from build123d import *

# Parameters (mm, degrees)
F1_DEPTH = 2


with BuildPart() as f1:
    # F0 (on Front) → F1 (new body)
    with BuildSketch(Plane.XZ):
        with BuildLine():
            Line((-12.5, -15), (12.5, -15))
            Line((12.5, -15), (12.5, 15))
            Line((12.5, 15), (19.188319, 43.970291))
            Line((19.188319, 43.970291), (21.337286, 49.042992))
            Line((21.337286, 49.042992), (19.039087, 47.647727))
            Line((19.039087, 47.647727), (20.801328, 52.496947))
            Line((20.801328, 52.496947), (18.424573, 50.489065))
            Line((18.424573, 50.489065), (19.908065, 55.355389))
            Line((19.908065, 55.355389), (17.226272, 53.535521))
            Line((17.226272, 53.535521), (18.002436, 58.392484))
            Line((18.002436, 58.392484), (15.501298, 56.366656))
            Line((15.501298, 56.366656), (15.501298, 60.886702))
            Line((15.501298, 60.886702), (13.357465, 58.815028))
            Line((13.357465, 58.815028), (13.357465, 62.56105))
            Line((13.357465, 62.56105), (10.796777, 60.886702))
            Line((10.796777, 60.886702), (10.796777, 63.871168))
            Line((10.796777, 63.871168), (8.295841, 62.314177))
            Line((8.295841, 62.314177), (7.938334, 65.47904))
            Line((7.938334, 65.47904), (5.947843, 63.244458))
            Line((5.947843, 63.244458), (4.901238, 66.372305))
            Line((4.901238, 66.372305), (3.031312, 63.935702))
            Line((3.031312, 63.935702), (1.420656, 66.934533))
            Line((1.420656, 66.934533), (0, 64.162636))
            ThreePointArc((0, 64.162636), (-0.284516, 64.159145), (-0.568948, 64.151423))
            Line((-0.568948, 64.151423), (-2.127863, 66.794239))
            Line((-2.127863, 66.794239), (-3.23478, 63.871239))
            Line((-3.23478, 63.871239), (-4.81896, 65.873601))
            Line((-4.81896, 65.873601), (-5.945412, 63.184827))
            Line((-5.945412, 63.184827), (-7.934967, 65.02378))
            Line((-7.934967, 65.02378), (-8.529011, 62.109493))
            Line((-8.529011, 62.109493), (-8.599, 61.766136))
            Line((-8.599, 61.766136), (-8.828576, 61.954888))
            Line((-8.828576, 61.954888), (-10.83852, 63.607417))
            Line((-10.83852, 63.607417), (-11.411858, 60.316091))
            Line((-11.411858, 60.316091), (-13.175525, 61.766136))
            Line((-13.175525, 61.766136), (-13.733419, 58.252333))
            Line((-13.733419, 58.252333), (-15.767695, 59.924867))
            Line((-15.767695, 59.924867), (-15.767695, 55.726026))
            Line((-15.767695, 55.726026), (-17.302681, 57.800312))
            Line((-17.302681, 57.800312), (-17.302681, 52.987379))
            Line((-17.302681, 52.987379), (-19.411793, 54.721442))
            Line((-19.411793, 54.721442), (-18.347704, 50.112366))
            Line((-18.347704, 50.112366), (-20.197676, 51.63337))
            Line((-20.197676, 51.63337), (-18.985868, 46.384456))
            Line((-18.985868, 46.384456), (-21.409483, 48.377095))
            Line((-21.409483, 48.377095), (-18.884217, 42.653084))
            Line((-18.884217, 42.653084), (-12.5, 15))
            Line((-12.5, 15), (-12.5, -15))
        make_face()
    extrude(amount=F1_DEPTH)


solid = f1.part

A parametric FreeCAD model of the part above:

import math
import FreeCAD as App
import Part
import Sketcher

V = App.Vector

doc = App.newDocument("Part")
body = doc.addObject("PartDesign::Body", "Body")

# Sketch on XZ plane
sketch1 = body.newObject("Sketcher::SketchObject", "Sketch")
sketch1.AttachmentSupport = (doc.getObject("XZ_Plane"), [""])
sketch1.MapMode = "FlatFace"
sketch1.addGeometry(Part.LineSegment(V(-12.5, -15, 0), V(12.5, -15, 0)), False)
sketch1.addGeometry(Part.LineSegment(V(12.5, -15, 0), V(12.5, 15, 0)), False)
sketch1.addGeometry(Part.LineSegment(V(12.5, 15, 0), V(19.188319, 43.970291, 0)), False)
sketch1.addGeometry(Part.LineSegment(V(19.188319, 43.970291, 0), V(21.337286, 49.042992, 0)), False)
sketch1.addGeometry(Part.LineSegment(V(21.337286, 49.042992, 0), V(19.039087, 47.647727, 0)), False)
sketch1.addGeometry(Part.LineSegment(V(19.039087, 47.647727, 0), V(20.801328, 52.496947, 0)), False)
sketch1.addGeometry(Part.LineSegment(V(20.801328, 52.496947, 0), V(18.424573, 50.489065, 0)), False)
sketch1.addGeometry(Part.LineSegment(V(18.424573, 50.489065, 0), V(19.908065, 55.355389, 0)), False)
sketch1.addGeometry(Part.LineSegment(V(19.908065, 55.355389, 0), V(17.226272, 53.535521, 0)), False)
sketch1.addGeometry(Part.LineSegment(V(17.226272, 53.535521, 0), V(18.002436, 58.392484, 0)), False)
sketch1.addGeometry(Part.LineSegment(V(18.002436, 58.392484, 0), V(15.501298, 56.366656, 0)), False)
sketch1.addGeometry(Part.LineSegment(V(15.501298, 56.366656, 0), V(15.501298, 60.886702, 0)), False)
sketch1.addGeometry(Part.LineSegment(V(15.501298, 60.886702, 0), V(13.357465, 58.815028, 0)), False)
sketch1.addGeometry(Part.LineSegment(V(13.357465, 58.815028, 0), V(13.357465, 62.56105, 0)), False)
sketch1.addGeometry(Part.LineSegment(V(13.357465, 62.56105, 0), V(10.796777, 60.886702, 0)), False)
sketch1.addGeometry(Part.LineSegment(V(10.796777, 60.886702, 0), V(10.796777, 63.871168, 0)), False)
sketch1.addGeometry(Part.LineSegment(V(10.796777, 63.871168, 0), V(8.295841, 62.314177, 0)), False)
sketch1.addGeometry(Part.LineSegment(V(8.295841, 62.314177, 0), V(7.938334, 65.47904, 0)), False)
sketch1.addGeometry(Part.LineSegment(V(7.938334, 65.47904, 0), V(5.947843, 63.244458, 0)), False)
sketch1.addGeometry(Part.LineSegment(V(5.947843, 63.244458, 0), V(4.901238, 66.372305, 0)), False)
sketch1.addGeometry(Part.LineSegment(V(4.901238, 66.372305, 0), V(3.031312, 63.935702, 0)), False)
sketch1.addGeometry(Part.LineSegment(V(3.031312, 63.935702, 0), V(1.420656, 66.934533, 0)), False)
sketch1.addGeometry(Part.LineSegment(V(1.420656, 66.934533, 0), V(0, 64.162636, 0)), False)
sketch1.addGeometry(Part.ArcOfCircle(Part.Circle(V(0.092461, 45.03135, 0), V(0, 0, 1), 19.131509), math.radians(90.276906), math.radians(91.981207)), False)
sketch1.addGeometry(Part.LineSegment(V(-0.568948, 64.151423, 0), V(-2.127863, 66.794239, 0)), False)
sketch1.addGeometry(Part.LineSegment(V(-2.127863, 66.794239, 0), V(-3.23478, 63.871239, 0)), False)
sketch1.addGeometry(Part.LineSegment(V(-3.23478, 63.871239, 0), V(-4.81896, 65.873601, 0)), False)
sketch1.addGeometry(Part.LineSegment(V(-4.81896, 65.873601, 0), V(-5.945412, 63.184827, 0)), False)
sketch1.addGeometry(Part.LineSegment(V(-5.945412, 63.184827, 0), V(-7.934967, 65.02378, 0)), False)
sketch1.addGeometry(Part.LineSegment(V(-7.934967, 65.02378, 0), V(-8.529011, 62.109493, 0)), False)
sketch1.addGeometry(Part.LineSegment(V(-8.529011, 62.109493, 0), V(-8.599, 61.766136, 0)), False)
sketch1.addGeometry(Part.LineSegment(V(-8.599, 61.766136, 0), V(-8.828576, 61.954888, 0)), False)
sketch1.addGeometry(Part.LineSegment(V(-8.828576, 61.954888, 0), V(-10.83852, 63.607417, 0)), False)
sketch1.addGeometry(Part.LineSegment(V(-10.83852, 63.607417, 0), V(-11.411858, 60.316091, 0)), False)
sketch1.addGeometry(Part.LineSegment(V(-11.411858, 60.316091, 0), V(-13.175525, 61.766136, 0)), False)
sketch1.addGeometry(Part.LineSegment(V(-13.175525, 61.766136, 0), V(-13.733419, 58.252333, 0)), False)
sketch1.addGeometry(Part.LineSegment(V(-13.733419, 58.252333, 0), V(-15.767695, 59.924867, 0)), False)
sketch1.addGeometry(Part.LineSegment(V(-15.767695, 59.924867, 0), V(-15.767695, 55.726026, 0)), False)
sketch1.addGeometry(Part.LineSegment(V(-15.767695, 55.726026, 0), V(-17.302681, 57.800312, 0)), False)
sketch1.addGeometry(Part.LineSegment(V(-17.302681, 57.800312, 0), V(-17.302681, 52.987379, 0)), False)
sketch1.addGeometry(Part.LineSegment(V(-17.302681, 52.987379, 0), V(-19.411793, 54.721442, 0)), False)
sketch1.addGeometry(Part.LineSegment(V(-19.411793, 54.721442, 0), V(-18.347704, 50.112366, 0)), False)
sketch1.addGeometry(Part.LineSegment(V(-18.347704, 50.112366, 0), V(-20.197676, 51.63337, 0)), False)
sketch1.addGeometry(Part.LineSegment(V(-20.197676, 51.63337, 0), V(-18.985868, 46.384456, 0)), False)
sketch1.addGeometry(Part.LineSegment(V(-18.985868, 46.384456, 0), V(-21.409483, 48.377095, 0)), False)
sketch1.addGeometry(Part.LineSegment(V(-21.409483, 48.377095, 0), V(-18.884217, 42.653084, 0)), False)
sketch1.addGeometry(Part.LineSegment(V(-18.884217, 42.653084, 0), V(-12.5, 15, 0)), False)
sketch1.addGeometry(Part.LineSegment(V(-12.5, 15, 0), V(-12.5, -15, 0)), False)
sketch1.addConstraint(Sketcher.Constraint("Coincident", 0, 2, 1, 1))
sketch1.addConstraint(Sketcher.Constraint("Coincident", 1, 2, 2, 1))
sketch1.addConstraint(Sketcher.Constraint("Coincident", 2, 2, 3, 1))
sketch1.addConstraint(Sketcher.Constraint("Coincident", 3, 2, 4, 1))
sketch1.addConstraint(Sketcher.Constraint("Coincident", 4, 2, 5, 1))
sketch1.addConstraint(Sketcher.Constraint("Coincident", 5, 2, 6, 1))
sketch1.addConstraint(Sketcher.Constraint("Coincident", 6, 2, 7, 1))
sketch1.addConstraint(Sketcher.Constraint("Coincident", 7, 2, 8, 1))
sketch1.addConstraint(Sketcher.Constraint("Coincident", 8, 2, 9, 1))
sketch1.addConstraint(Sketcher.Constraint("Coincident", 9, 2, 10, 1))
sketch1.addConstraint(Sketcher.Constraint("Coincident", 10, 2, 11, 1))
sketch1.addConstraint(Sketcher.Constraint("Coincident", 11, 2, 12, 1))
sketch1.addConstraint(Sketcher.Constraint("Coincident", 12, 2, 13, 1))
sketch1.addConstraint(Sketcher.Constraint("Coincident", 13, 2, 14, 1))
sketch1.addConstraint(Sketcher.Constraint("Coincident", 14, 2, 15, 1))
sketch1.addConstraint(Sketcher.Constraint("Coincident", 15, 2, 16, 1))
sketch1.addConstraint(Sketcher.Constraint("Coincident", 16, 2, 17, 1))
sketch1.addConstraint(Sketcher.Constraint("Coincident", 17, 2, 18, 1))
sketch1.addConstraint(Sketcher.Constraint("Coincident", 18, 2, 19, 1))
sketch1.addConstraint(Sketcher.Constraint("Coincident", 19, 2, 20, 1))
sketch1.addConstraint(Sketcher.Constraint("Coincident", 20, 2, 21, 1))
sketch1.addConstraint(Sketcher.Constraint("Coincident", 21, 2, 22, 1))
sketch1.addConstraint(Sketcher.Constraint("Coincident", 22, 2, 23, 1))
sketch1.addConstraint(Sketcher.Constraint("Coincident", 23, 2, 24, 1))
sketch1.addConstraint(Sketcher.Constraint("Coincident", 24, 2, 25, 1))
sketch1.addConstraint(Sketcher.Constraint("Coincident", 25, 2, 26, 1))
sketch1.addConstraint(Sketcher.Constraint("Coincident", 26, 2, 27, 1))
sketch1.addConstraint(Sketcher.Constraint("Coincident", 27, 2, 28, 1))
sketch1.addConstraint(Sketcher.Constraint("Coincident", 28, 2, 29, 1))
sketch1.addConstraint(Sketcher.Constraint("Coincident", 29, 2, 30, 1))
sketch1.addConstraint(Sketcher.Constraint("Coincident", 30, 2, 31, 1))
sketch1.addConstraint(Sketcher.Constraint("Coincident", 31, 2, 32, 1))
sketch1.addConstraint(Sketcher.Constraint("Coincident", 32, 2, 33, 1))
sketch1.addConstraint(Sketcher.Constraint("Coincident", 33, 2, 34, 1))
sketch1.addConstraint(Sketcher.Constraint("Coincident", 34, 2, 35, 1))
sketch1.addConstraint(Sketcher.Constraint("Coincident", 35, 2, 36, 1))
sketch1.addConstraint(Sketcher.Constraint("Coincident", 36, 2, 37, 1))
sketch1.addConstraint(Sketcher.Constraint("Coincident", 37, 2, 38, 1))
sketch1.addConstraint(Sketcher.Constraint("Coincident", 38, 2, 39, 1))
sketch1.addConstraint(Sketcher.Constraint("Coincident", 39, 2, 40, 1))
sketch1.addConstraint(Sketcher.Constraint("Coincident", 40, 2, 41, 1))
sketch1.addConstraint(Sketcher.Constraint("Coincident", 41, 2, 42, 1))
sketch1.addConstraint(Sketcher.Constraint("Coincident", 42, 2, 43, 1))
sketch1.addConstraint(Sketcher.Constraint("Coincident", 43, 2, 44, 1))
sketch1.addConstraint(Sketcher.Constraint("Coincident", 44, 2, 45, 1))
sketch1.addConstraint(Sketcher.Constraint("Coincident", 45, 2, 46, 1))
sketch1.addConstraint(Sketcher.Constraint("Coincident", 46, 2, 47, 1))
sketch1.addConstraint(Sketcher.Constraint("Coincident", 47, 2, 0, 1))
sketch1.addConstraint(Sketcher.Constraint("Horizontal", 0))
sketch1.addConstraint(Sketcher.Constraint("Vertical", 1))
sketch1.addConstraint(Sketcher.Constraint("Vertical", 11))
sketch1.addConstraint(Sketcher.Constraint("Vertical", 13))
sketch1.addConstraint(Sketcher.Constraint("Vertical", 15))
sketch1.addConstraint(Sketcher.Constraint("Vertical", 37))
sketch1.addConstraint(Sketcher.Constraint("Vertical", 39))
sketch1.addConstraint(Sketcher.Constraint("Vertical", 47))
sketch1.addConstraint(Sketcher.Constraint("PointOnObject", 22, 2, -2))
sketch1.addConstraint(Sketcher.Constraint("DistanceX", 0, 1, 0, 2, 25.0))
sketch1.addConstraint(Sketcher.Constraint("DistanceY", 1, 1, 1, 2, 30.0))
sketch1.addConstraint(Sketcher.Constraint("DistanceY", 47, 2, 47, 1, 30.0))
sketch1.addConstraint(Sketcher.Constraint("DistanceY", 0, 2, -1, 1, 15.0))
sketch1.addConstraint(Sketcher.Constraint("DistanceX", -1, 1, 0, 2, 12.5))
sketch1.addConstraint(Sketcher.Constraint("Radius", 23, 19.131509))
sketch1.addConstraint(Sketcher.Constraint("DistanceX", 30, 2, -1, 1, 8.599))
sketch1.addConstraint(Sketcher.Constraint("DistanceY", 25, 2, 24, 2, 2.923))
sketch1.addConstraint(Sketcher.Constraint("Distance", 5, 5.159499))
sketch1.addConstraint(Sketcher.Constraint("Distance", 27, 2.915201))
sketch1.addConstraint(Sketcher.Constraint("Distance", 45, 6.256298))
sketch1.addConstraint(Sketcher.Constraint("DistanceY", 37, 2, 37, 1, 4.198841))
sketch1.addConstraint(Sketcher.Constraint("DistanceY", -1, 1, 26, 2, 65.873601))
sketch1.addConstraint(Sketcher.Constraint("DistanceY", 2, 2, 3, 2, 5.072701))
sketch1.addConstraint(Sketcher.Constraint("DistanceX", 4, 2, 3, 2, 2.298199))
sketch1.addConstraint(Sketcher.Constraint("DistanceX", 8, 2, 6, 2, 1.198301))
sketch1.addConstraint(Sketcher.Constraint("DistanceX", 12, 2, 7, 2, 6.5506))
sketch1.addConstraint(Sketcher.Constraint("DistanceX", 24, 2, 19, 2, 7.029101))
sketch1.addConstraint(Sketcher.Constraint("DistanceX", 29, 2, 27, 2, 2.583599))
sketch1.addConstraint(Sketcher.Constraint("DistanceX", 35, 2, 32, 2, 2.894899))
sketch1.addConstraint(Sketcher.Constraint("Distance", 2, 29.732329))
sketch1.addConstraint(Sketcher.Constraint("Distance", 6, 3.111359))
sketch1.addConstraint(Sketcher.Constraint("Distance", 7, 5.087422))
sketch1.addConstraint(Sketcher.Constraint("Distance", 9, 4.918589))
sketch1.addConstraint(Sketcher.Constraint("Distance", 12, 2.98125))
sketch1.addConstraint(Sketcher.Constraint("Distance", 17, 3.184991))
sketch1.addConstraint(Sketcher.Constraint("Distance", 18, 2.992559))
sketch1.addConstraint(Sketcher.Constraint("Distance", 22, 3.114751))
sketch1.addConstraint(Sketcher.Constraint("Distance", 25, 3.125571))
sketch1.addConstraint(Sketcher.Constraint("Distance", 26, 2.553249))
sketch1.addConstraint(Sketcher.Constraint("Distance", 33, 3.34089))
sketch1.addConstraint(Sketcher.Constraint("DistanceY", 11, 1, 11, 2, 4.520046))
sketch1.addConstraint(Sketcher.Constraint("DistanceY", 13, 1, 13, 2, 3.746022))
sketch1.addConstraint(Sketcher.Constraint("DistanceY", 15, 1, 15, 2, 2.984466))
sketch1.addConstraint(Sketcher.Constraint("DistanceY", 39, 2, 39, 1, 4.812933))
sketch1.addConstraint(Sketcher.Constraint("DistanceX", -1, 1, 23, 3, 0.092461))
sketch1.addConstraint(Sketcher.Constraint("DistanceY", -1, 1, 23, 3, 45.03135))
sketch1.addConstraint(Sketcher.Constraint("DistanceX", -1, 1, 2, 2, 19.188319))
sketch1.addConstraint(Sketcher.Constraint("DistanceX", -1, 1, 5, 2, 20.801328))
sketch1.addConstraint(Sketcher.Constraint("DistanceY", -1, 1, 7, 2, 55.355389))
sketch1.addConstraint(Sketcher.Constraint("DistanceY", -1, 1, 8, 2, 53.535521))
sketch1.addConstraint(Sketcher.Constraint("DistanceY", -1, 1, 13, 2, 62.56105))
sketch1.addConstraint(Sketcher.Constraint("DistanceX", -1, 1, 16, 2, 8.295841))
sketch1.addConstraint(Sketcher.Constraint("DistanceY", -1, 1, 17, 2, 65.47904))
sketch1.addConstraint(Sketcher.Constraint("DistanceY", -1, 1, 18, 2, 63.244458))
sketch1.addConstraint(Sketcher.Constraint("DistanceX", -1, 1, 19, 2, 4.901238))
sketch1.addConstraint(Sketcher.Constraint("DistanceX", -1, 1, 20, 2, 3.031312))
sketch1.addConstraint(Sketcher.Constraint("DistanceY", -1, 1, 24, 2, 66.794239))
sketch1.addConstraint(Sketcher.Constraint("DistanceY", -1, 1, 28, 2, 65.02378))
sketch1.addConstraint(Sketcher.Constraint("DistanceX", 29, 2, -1, 1, 8.529011))
sketch1.addConstraint(Sketcher.Constraint("DistanceX", 32, 2, -1, 1, 10.83852))
sketch1.addConstraint(Sketcher.Constraint("DistanceY", -1, 1, 33, 2, 60.316091))
sketch1.addConstraint(Sketcher.Constraint("DistanceX", 38, 2, -1, 1, 17.302681))
sketch1.addConstraint(Sketcher.Constraint("DistanceY", -1, 1, 38, 2, 57.800312))
sketch1.addConstraint(Sketcher.Constraint("DistanceY", -1, 1, 42, 2, 51.63337))
sketch1.addConstraint(Sketcher.Constraint("DistanceX", 43, 2, -1, 1, 18.985868))
sketch1.addConstraint(Sketcher.Constraint("DistanceX", 4, 2, 5, 2, 1.762241))
sketch1.addConstraint(Sketcher.Constraint("DistanceX", 7, 2, 3, 2, 1.429221))
sketch1.addConstraint(Sketcher.Constraint("DistanceY", 4, 2, 7, 2, 7.707662))
sketch1.addConstraint(Sketcher.Constraint("DistanceX", 9, 2, 7, 2, 1.905629))
sketch1.addConstraint(Sketcher.Constraint("DistanceY", 10, 2, 9, 2, 2.025828))
sketch1.addConstraint(Sketcher.Constraint("DistanceY", 14, 2, 13, 2, 1.674348))
sketch1.addConstraint(Sketcher.Constraint("DistanceX", 14, 2, 11, 2, 4.704521))
sketch1.addConstraint(Sketcher.Constraint("DistanceY", 16, 2, 15, 2, 1.556991))
sketch1.addConstraint(Sketcher.Constraint("DistanceY", 20, 2, 21, 2, 2.998831))
sketch1.addConstraint(Sketcher.Constraint("DistanceY", 19, 2, 21, 2, 0.562228))
sketch1.addConstraint(Sketcher.Constraint("DistanceY", 22, 2, 19, 2, 2.209669))
sketch1.addConstraint(Sketcher.Constraint("DistanceY", 23, 2, 21, 2, 2.78311))
sketch1.addConstraint(Sketcher.Constraint("DistanceX", 28, 2, 23, 2, 7.366019))
sketch1.addConstraint(Sketcher.Constraint("DistanceY", 30, 2, 27, 2, 1.418691))
sketch1.addConstraint(Sketcher.Constraint("DistanceY", 30, 2, 31, 2, 0.188752))
sketch1.addConstraint(Sketcher.Constraint("DistanceX", 31, 2, 28, 2, 0.893609))
sketch1.addConstraint(Sketcher.Constraint("DistanceY", 31, 2, 32, 2, 1.652529))
sketch1.addConstraint(Sketcher.Constraint("DistanceY", 34, 2, 32, 2, 1.841281))
sketch1.addConstraint(Sketcher.Constraint("DistanceX", 34, 2, 31, 2, 4.346949))
sketch1.addConstraint(Sketcher.Constraint("DistanceY", 35, 2, 33, 2, 2.063758))
sketch1.addConstraint(Sketcher.Constraint("DistanceX", 36, 2, 34, 2, 2.59217))
sketch1.addConstraint(Sketcher.Constraint("DistanceY", 36, 2, 34, 2, 1.841269))
sketch1.addConstraint(Sketcher.Constraint("DistanceX", 40, 2, 39, 2, 2.109112))
sketch1.addConstraint(Sketcher.Constraint("DistanceY", 40, 2, 38, 2, 3.07887))
sketch1.addConstraint(Sketcher.Constraint("DistanceX", 40, 2, 41, 2, 1.064089))
sketch1.addConstraint(Sketcher.Constraint("DistanceY", 41, 2, 37, 2, 5.61366))
sketch1.addConstraint(Sketcher.Constraint("DistanceX", 42, 2, 37, 2, 4.429981))
sketch1.addConstraint(Sketcher.Constraint("DistanceY", 43, 2, 41, 2, 3.72791))
sketch1.addConstraint(Sketcher.Constraint("DistanceY", 43, 2, 44, 2, 1.992639))
sketch1.addConstraint(Sketcher.Constraint("DistanceX", 44, 2, 41, 2, 3.061779))
sketch1.addConstraint(Sketcher.Constraint("DistanceX", 43, 2, 45, 2, 0.101651))
sketch1.addConstraint(Sketcher.Constraint("Distance", 29, 2.974215))
pad1 = body.newObject("PartDesign::Pad", "Pad")
pad1.Profile = sketch1
pad1.Length = 2

doc.recompute()
